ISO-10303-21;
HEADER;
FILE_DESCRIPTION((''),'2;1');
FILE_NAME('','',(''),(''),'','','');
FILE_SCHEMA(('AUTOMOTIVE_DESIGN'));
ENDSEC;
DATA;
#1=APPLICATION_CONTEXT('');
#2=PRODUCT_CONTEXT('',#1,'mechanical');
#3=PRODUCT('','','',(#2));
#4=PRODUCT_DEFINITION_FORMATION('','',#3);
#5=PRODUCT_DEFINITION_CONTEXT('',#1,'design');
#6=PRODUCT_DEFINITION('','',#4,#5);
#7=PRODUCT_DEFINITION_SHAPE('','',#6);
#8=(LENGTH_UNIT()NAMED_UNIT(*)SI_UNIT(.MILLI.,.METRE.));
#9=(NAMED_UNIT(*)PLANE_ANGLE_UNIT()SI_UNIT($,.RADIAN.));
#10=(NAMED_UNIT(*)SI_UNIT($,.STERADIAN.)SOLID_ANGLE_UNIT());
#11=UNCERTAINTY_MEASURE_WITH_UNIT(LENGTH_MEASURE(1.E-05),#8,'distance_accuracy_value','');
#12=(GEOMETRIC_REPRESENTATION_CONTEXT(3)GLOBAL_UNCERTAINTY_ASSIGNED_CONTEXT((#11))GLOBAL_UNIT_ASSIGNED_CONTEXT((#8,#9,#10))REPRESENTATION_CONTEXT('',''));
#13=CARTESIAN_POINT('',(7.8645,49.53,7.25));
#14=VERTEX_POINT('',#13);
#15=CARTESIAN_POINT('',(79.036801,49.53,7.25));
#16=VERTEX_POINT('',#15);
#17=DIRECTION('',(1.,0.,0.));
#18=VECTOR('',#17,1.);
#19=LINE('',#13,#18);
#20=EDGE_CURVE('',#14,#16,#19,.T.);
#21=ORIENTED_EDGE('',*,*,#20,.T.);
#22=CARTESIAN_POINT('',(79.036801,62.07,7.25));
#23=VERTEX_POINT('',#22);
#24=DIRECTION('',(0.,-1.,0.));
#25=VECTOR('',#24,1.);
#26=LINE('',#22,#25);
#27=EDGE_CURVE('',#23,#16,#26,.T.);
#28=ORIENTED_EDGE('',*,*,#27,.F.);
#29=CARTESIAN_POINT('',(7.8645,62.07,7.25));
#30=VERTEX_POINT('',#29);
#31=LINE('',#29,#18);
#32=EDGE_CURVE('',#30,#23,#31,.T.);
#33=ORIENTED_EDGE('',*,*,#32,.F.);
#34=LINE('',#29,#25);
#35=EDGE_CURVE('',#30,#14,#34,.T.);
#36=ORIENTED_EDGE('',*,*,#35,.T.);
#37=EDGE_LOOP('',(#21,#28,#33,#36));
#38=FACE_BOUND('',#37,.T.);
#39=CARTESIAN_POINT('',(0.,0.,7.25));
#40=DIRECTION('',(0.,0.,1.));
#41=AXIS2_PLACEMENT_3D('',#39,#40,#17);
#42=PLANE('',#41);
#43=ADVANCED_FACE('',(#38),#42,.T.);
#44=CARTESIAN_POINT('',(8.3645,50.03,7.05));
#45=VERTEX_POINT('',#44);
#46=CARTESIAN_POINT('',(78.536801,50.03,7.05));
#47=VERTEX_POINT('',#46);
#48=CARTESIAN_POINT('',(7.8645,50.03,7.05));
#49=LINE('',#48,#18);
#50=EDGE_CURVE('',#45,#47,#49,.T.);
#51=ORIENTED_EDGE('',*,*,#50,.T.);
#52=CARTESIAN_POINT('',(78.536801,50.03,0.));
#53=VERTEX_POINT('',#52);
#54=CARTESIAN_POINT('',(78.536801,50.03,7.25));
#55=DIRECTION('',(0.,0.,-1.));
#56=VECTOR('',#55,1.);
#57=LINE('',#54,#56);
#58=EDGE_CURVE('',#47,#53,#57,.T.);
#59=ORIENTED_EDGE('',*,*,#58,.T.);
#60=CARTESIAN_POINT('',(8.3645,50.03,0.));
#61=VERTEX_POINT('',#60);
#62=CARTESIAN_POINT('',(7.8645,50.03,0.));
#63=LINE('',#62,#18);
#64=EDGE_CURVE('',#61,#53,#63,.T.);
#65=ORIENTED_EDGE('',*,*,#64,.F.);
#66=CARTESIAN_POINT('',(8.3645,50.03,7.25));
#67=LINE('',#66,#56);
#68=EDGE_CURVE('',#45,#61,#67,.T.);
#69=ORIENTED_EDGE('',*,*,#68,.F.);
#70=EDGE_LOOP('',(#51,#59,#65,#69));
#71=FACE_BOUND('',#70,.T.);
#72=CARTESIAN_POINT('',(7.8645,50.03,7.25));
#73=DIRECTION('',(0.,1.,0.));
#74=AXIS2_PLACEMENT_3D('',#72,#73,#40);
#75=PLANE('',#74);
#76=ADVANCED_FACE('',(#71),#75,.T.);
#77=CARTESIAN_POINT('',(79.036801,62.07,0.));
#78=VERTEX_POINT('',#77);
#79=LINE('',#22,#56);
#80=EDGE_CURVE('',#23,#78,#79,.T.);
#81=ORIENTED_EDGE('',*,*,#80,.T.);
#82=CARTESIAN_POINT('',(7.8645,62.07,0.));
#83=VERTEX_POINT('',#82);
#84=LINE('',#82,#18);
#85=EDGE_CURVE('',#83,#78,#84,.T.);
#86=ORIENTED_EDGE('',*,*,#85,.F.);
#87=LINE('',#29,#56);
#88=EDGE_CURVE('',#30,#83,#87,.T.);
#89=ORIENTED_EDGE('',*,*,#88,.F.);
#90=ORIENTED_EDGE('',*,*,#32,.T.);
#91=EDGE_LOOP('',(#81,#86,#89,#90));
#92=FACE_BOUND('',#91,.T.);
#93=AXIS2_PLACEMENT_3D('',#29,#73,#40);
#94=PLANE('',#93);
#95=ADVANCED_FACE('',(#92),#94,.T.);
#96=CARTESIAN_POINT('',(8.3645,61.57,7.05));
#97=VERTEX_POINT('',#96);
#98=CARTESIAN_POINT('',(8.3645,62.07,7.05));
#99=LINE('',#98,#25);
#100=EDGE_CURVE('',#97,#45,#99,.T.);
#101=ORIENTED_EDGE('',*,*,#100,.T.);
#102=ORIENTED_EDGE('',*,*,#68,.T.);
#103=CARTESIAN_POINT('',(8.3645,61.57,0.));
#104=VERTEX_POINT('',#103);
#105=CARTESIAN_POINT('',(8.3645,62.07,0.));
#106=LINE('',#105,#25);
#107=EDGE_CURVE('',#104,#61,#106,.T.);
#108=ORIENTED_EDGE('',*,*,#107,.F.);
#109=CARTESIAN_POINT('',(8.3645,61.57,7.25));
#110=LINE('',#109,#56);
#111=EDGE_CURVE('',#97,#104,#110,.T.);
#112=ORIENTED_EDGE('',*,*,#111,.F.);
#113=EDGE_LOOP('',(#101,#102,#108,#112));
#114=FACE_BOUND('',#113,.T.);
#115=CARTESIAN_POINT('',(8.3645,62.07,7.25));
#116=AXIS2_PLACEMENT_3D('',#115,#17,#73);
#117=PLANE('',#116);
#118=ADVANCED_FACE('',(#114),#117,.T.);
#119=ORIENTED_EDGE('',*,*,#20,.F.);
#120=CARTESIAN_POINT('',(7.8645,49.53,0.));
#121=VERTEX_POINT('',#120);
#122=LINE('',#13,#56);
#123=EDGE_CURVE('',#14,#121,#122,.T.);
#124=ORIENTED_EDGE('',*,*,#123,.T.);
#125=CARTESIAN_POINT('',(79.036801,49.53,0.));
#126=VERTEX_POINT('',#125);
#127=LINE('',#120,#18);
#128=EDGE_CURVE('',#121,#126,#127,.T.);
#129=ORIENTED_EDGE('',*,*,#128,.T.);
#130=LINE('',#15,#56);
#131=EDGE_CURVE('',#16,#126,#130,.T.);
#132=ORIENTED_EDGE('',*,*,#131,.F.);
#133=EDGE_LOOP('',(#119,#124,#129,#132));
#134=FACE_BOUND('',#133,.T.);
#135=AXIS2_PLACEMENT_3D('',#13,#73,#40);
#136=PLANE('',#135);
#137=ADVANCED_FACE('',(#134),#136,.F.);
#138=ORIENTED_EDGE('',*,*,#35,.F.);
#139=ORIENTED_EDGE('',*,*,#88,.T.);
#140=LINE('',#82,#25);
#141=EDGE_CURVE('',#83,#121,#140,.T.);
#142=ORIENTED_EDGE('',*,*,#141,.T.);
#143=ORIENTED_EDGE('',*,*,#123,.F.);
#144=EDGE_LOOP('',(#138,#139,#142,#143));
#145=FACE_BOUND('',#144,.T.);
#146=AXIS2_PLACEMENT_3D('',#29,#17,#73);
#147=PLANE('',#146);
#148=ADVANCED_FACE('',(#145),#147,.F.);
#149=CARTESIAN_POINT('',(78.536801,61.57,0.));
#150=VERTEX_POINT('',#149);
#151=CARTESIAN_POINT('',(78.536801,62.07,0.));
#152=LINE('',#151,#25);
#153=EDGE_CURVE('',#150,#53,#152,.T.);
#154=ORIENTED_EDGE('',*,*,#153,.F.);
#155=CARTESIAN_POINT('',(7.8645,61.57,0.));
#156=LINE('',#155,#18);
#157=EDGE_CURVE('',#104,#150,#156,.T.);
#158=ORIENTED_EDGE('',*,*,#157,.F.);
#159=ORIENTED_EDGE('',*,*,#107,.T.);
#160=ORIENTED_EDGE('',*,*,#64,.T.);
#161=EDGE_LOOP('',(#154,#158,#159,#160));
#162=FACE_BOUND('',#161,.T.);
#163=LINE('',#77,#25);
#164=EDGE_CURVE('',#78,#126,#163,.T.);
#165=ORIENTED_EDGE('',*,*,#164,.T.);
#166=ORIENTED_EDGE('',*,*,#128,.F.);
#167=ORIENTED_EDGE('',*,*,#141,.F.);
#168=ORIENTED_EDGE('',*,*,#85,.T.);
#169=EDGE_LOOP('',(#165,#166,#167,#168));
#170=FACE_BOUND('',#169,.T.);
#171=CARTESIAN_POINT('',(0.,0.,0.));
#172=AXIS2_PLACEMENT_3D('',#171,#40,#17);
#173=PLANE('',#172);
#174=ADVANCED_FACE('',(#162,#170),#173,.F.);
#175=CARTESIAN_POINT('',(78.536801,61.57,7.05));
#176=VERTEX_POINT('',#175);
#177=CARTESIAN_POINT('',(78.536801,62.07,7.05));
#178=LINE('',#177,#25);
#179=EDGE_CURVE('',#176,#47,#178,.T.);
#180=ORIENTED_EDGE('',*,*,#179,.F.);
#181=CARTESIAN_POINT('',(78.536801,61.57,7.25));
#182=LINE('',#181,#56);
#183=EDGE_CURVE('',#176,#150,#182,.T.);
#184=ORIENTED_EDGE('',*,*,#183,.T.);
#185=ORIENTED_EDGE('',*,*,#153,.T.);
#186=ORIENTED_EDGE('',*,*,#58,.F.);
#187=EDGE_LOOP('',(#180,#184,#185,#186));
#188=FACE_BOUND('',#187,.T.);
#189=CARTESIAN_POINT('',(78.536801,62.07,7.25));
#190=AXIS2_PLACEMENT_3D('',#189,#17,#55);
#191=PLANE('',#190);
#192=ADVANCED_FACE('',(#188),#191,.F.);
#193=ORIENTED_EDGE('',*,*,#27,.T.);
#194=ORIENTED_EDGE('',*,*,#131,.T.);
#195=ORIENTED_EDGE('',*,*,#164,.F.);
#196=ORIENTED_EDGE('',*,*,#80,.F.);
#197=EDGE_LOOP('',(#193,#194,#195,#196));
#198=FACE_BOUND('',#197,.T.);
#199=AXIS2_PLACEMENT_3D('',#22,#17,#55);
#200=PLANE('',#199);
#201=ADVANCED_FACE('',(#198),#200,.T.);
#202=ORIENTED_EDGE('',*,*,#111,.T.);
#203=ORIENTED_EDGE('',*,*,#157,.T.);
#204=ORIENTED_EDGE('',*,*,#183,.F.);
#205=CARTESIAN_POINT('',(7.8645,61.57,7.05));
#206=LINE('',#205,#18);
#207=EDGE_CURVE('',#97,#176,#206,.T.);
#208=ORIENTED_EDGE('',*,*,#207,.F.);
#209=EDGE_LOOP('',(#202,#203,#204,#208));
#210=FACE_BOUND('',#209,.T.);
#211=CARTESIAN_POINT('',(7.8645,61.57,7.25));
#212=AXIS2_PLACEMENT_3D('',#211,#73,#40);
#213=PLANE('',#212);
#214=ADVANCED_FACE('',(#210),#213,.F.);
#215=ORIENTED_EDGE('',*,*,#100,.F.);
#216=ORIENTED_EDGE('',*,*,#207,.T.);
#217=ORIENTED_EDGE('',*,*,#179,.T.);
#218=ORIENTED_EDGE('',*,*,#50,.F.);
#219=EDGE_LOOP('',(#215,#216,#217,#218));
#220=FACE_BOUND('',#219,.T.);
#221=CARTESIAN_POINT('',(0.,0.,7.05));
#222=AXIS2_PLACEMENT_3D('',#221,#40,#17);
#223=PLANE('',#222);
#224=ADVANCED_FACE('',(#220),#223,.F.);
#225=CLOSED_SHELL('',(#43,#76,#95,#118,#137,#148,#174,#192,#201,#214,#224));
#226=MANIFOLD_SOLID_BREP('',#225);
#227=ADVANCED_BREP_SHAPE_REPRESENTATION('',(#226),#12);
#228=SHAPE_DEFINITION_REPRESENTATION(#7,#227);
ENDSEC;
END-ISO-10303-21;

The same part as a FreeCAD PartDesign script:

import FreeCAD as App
import Part
import Sketcher
from FreeCAD import Vector
Q = App.Units.Quantity


def faces_at(feature, points):
    """Names of the faces that lie closest to the given points."""
    faces = feature.Shape.Faces
    near = lambda p: min(range(len(faces)), key=lambda i: faces[i].distToShape(Part.Vertex(*p))[0])
    return sorted({f"Face{near(p) + 1}" for p in points})


def add_polygon(sketch, points):
    """Adds a closed chain of lines whose ends are joined by coincident constraints."""
    first, n = sketch.GeometryCount, len(points)
    for a, b in zip(points, points[1:] + points[:1]):
        sketch.addGeometry(Part.LineSegment(App.Vector(*a, 0), App.Vector(*b, 0)), False)
    for i in range(n):
        sketch.addConstraint(Sketcher.Constraint("Coincident", first + i, 2, first + (i + 1) % n, 1))

doc = App.newDocument("Part")
body = doc.addObject("PartDesign::Body", "Body")

# Sketch on XY plane
sketch1 = body.newObject("Sketcher::SketchObject", "Sketch")
sketch1.AttachmentSupport = (doc.getObject("XY_Plane"), [""])
sketch1.MapMode = "FlatFace"
add_polygon(sketch1, [(7.8645, 62.07), (7.8645, 49.53), (79.036801, 49.53), (79.036801, 62.07)])  # lines 0-3
sketch1.addConstraint([
    Sketcher.Constraint("Vertical", 0),
    Sketcher.Constraint("Horizontal", 1),
    Sketcher.Constraint("Vertical", 2),
    Sketcher.Constraint("Horizontal", 3),
    Sketcher.Constraint("DistanceY", 0, 2, 0, 1, Q("12.54 mm")),
    Sketcher.Constraint("DistanceY", -1, 1, 0, 2, Q("49.53 mm")),
    Sketcher.Constraint("DistanceX", 1, 1, 1, 2, Q("71.172301 mm")),
    Sketcher.Constraint("DistanceX", -1, 1, 0, 2, Q("7.8645 mm")),
])
pad1 = body.newObject("PartDesign::Pad", "Pad")
pad1.Profile = sketch1
pad1.Length = 7.25
doc.recompute()

thickness = body.newObject("PartDesign::Thickness", "Thickness")
thickness.Base = (pad1, faces_at(pad1, [(43.451, 55.8, 0)]))
thickness.Value = 0.5
thickness.Reversed = True
thickness.Join = "Intersection"

# Sketch on XY plane
sketch2 = body.newObject("Sketcher::SketchObject", "Sketch001")
sketch2.AttachmentSupport = (doc.getObject("XY_Plane"), [""])
sketch2.MapMode = "FlatFace"
sketch2.AttachmentOffset = App.Placement(Vector(0, 0, 6.75), App.Rotation())
add_polygon(sketch2, [(8.3645, 61.57), (8.3645, 50.03), (78.536801, 50.03), (78.536801, 61.57)])  # lines 0-3
sketch2.addConstraint([
    Sketcher.Constraint("Vertical", 0),
    Sketcher.Constraint("Horizontal", 1),
    Sketcher.Constraint("Vertical", 2),
    Sketcher.Constraint("Horizontal", 3),
    Sketcher.Constraint("DistanceY", 0, 2, 0, 1, Q("11.54 mm")),
    Sketcher.Constraint("DistanceY", -1, 1, 0, 2, Q("50.03 mm")),
    Sketcher.Constraint("DistanceX", 1, 1, 1, 2, Q("70.172301 mm")),
    Sketcher.Constraint("DistanceX", -1, 1, 0, 2, Q("8.3645 mm")),
])
pocket1 = body.newObject("PartDesign::Pocket", "Pocket")
pocket1.Profile = sketch2
pocket1.Length = 0.3
pocket1.Reversed = True

doc.recompute()
